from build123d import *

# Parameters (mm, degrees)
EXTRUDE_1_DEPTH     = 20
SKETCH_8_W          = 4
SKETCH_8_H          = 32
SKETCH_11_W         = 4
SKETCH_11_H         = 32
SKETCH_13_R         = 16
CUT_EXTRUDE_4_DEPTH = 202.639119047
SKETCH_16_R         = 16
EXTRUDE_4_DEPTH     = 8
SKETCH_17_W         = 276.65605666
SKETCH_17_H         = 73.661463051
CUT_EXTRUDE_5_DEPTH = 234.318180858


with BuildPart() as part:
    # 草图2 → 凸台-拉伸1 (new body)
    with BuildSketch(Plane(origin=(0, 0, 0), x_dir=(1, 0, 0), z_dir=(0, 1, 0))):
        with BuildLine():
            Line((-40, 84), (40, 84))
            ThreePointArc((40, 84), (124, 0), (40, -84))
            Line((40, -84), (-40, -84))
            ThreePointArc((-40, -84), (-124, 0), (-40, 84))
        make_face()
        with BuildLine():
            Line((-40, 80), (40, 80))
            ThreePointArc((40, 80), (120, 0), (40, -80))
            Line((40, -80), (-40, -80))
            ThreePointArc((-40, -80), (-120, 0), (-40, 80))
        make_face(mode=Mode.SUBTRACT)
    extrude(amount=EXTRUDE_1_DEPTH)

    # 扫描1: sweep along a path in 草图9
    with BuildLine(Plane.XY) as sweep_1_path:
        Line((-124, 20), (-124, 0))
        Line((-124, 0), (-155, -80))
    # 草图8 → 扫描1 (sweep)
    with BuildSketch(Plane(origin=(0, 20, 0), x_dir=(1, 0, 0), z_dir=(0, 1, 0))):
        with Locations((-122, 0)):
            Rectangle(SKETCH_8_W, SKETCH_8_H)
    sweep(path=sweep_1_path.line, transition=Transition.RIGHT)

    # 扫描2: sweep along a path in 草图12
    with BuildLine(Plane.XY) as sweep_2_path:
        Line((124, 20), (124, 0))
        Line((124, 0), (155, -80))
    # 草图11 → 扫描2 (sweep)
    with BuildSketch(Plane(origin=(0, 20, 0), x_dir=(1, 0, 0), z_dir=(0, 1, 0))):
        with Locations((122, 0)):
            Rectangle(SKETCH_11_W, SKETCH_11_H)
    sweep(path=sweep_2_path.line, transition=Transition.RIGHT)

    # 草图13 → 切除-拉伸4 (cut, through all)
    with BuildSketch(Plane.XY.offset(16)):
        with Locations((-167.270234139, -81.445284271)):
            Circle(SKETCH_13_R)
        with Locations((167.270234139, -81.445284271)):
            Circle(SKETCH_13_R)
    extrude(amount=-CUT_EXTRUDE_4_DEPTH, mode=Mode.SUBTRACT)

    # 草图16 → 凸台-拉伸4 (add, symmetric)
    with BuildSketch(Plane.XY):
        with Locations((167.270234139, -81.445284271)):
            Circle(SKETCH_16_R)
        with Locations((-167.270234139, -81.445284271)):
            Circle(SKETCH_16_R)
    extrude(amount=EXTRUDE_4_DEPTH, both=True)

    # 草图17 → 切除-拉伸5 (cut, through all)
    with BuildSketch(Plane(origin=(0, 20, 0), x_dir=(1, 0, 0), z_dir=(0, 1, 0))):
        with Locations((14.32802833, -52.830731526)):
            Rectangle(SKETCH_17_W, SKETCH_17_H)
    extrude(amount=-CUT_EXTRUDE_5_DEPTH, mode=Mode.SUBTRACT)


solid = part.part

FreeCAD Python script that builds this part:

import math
import FreeCAD as App
import Part
import Sketcher
Q = App.Units.Quantity


def add_polygon(sketch, points):
    """Adds a closed chain of lines whose ends are joined by coincident constraints."""
    first, n = sketch.GeometryCount, len(points)
    for a, b in zip(points, points[1:] + points[:1]):
        sketch.addGeometry(Part.LineSegment(App.Vector(*a, 0), App.Vector(*b, 0)), False)
    for i in range(n):
        sketch.addConstraint(Sketcher.Constraint("Coincident", first + i, 2, first + (i + 1) % n, 1))

doc = App.newDocument("Part")
params = doc.addObject("Spreadsheet::Sheet", "Params")
for row, (alias, value) in enumerate([
    ("sketch1_radius", "84 mm"),
    ("sketch1_radius2", "80 mm"),
    ("sketch1_width", "80 mm"),
    ("pad1_length", "20 mm"),
    ("sketch2_width", "4 mm"),
    ("sketch2_height", "32 mm"),
    ("sketch3_height", "20 mm"),
    ("sketch4_width", "4 mm"),
    ("sketch4_height", "32 mm"),
    ("sketch5_height", "20 mm"),
    ("sketch6_diameter", "32 mm"),
    ("sketch7_diameter", "32 mm"),
    ("pad2_length", "16 mm"),
], start=1):
    params.set(f"A{row}", alias)
    params.set(f"B{row}", "=" + value)
    params.setAlias(f"B{row}", alias)

body = doc.addObject("PartDesign::Body", "Body")

# Sketch on XZ plane
sketch1 = doc.addObject("Sketcher::SketchObject", "Sketch")
body.addObject(sketch1)
sketch1.AttachmentSupport = (doc.XZ_Plane, [""])
sketch1.MapMode = "FlatFace"
sketch1.addGeometry([
    Part.LineSegment(App.Vector(40, -84, 0), App.Vector(-40, -84, 0)),  # 0
    Part.ArcOfCircle(Part.Circle(App.Vector(-40, 0, 0), App.Vector(0, 0, 1), 84), math.radians(90), math.radians(270)),  # 1
    Part.LineSegment(App.Vector(-40, 84, 0), App.Vector(40, 84, 0)),  # 2
    Part.ArcOfCircle(Part.Circle(App.Vector(40, 0, 0), App.Vector(0, 0, 1), 84), math.radians(-90), math.radians(90)),  # 3
    Part.LineSegment(App.Vector(-40, -80, 0), App.Vector(40, -80, 0)),  # 4
    Part.ArcOfCircle(Part.Circle(App.Vector(40, 0, 0), App.Vector(0, 0, 1), 80), math.radians(-90), math.radians(90)),  # 5
    Part.LineSegment(App.Vector(40, 80, 0), App.Vector(-40, 80, 0)),  # 6
    Part.ArcOfCircle(Part.Circle(App.Vector(-40, 0, 0), App.Vector(0, 0, 1), 80), math.radians(90), math.radians(270)),  # 7
], False)
sketch1.addConstraint([
    Sketcher.Constraint("Tangent", 0, 2, 1, 2),
    Sketcher.Constraint("Tangent", 1, 1, 2, 1),
    Sketcher.Constraint("Tangent", 2, 2, 3, 2),
    Sketcher.Constraint("Tangent", 3, 1, 0, 1),
    Sketcher.Constraint("Tangent", 4, 2, 5, 1),
    Sketcher.Constraint("Tangent", 5, 2, 6, 1),
    Sketcher.Constraint("Tangent", 6, 2, 7, 1),
    Sketcher.Constraint("Tangent", 7, 2, 4, 1),
    Sketcher.Constraint("Horizontal", 0),
    Sketcher.Constraint("Horizontal", 2),
    Sketcher.Constraint("Horizontal", 4),
    Sketcher.Constraint("Horizontal", 6),
    Sketcher.Constraint("Coincident", 5, 3, 3, 3),
    Sketcher.Constraint("Symmetric", 1, 3, 3, 3, -1, 1),
    Sketcher.Constraint("Vertical", 7, 3, 0, 2),
    Sketcher.Constraint("Radius", 1, Q("84 mm")),
    Sketcher.Constraint("Radius", 5, Q("80 mm")),
    Sketcher.Constraint("DistanceX", 0, 2, 0, 1, Q("80 mm")),
])
sketch1.setExpression("Constraints[15]", "Params.sketch1_radius")
sketch1.setExpression("Constraints[16]", "Params.sketch1_radius2")
sketch1.setExpression("Constraints[17]", "Params.sketch1_width")
pad1 = doc.addObject("PartDesign::Pad", "Pad")
body.addObject(pad1)
pad1.Profile = sketch1
pad1.setExpression("Length", "Params.pad1_length")
pad1.Reversed = True

# Sketch on XZ plane
sketch2 = doc.addObject("Sketcher::SketchObject", "Sketch001")
body.addObject(sketch2)
sketch2.AttachmentSupport = (doc.XZ_Plane, [""])
sketch2.MapMode = "FlatFace"
sketch2.AttachmentOffset = App.Placement(App.Vector(0, 0, -20), App.Rotation())
add_polygon(sketch2, [(-124, -16), (-124, 16), (-120, 16), (-120, -16)])  # lines 0-3
sketch2.addConstraint([
    Sketcher.Constraint("Vertical", 0),
    Sketcher.Constraint("Horizontal", 1),
    Sketcher.Constraint("Vertical", 2),
    Sketcher.Constraint("Horizontal", 3),
    Sketcher.Constraint("DistanceX", 1, 1, 1, 2, Q("4 mm")),
    Sketcher.Constraint("DistanceY", 0, 1, 0, 2, Q("32 mm")),
    Sketcher.Constraint("DistanceX", 0, 2, -1, 1, Q("124 mm")),
    Sketcher.Constraint("DistanceY", -1, 1, 0, 2, Q("16 mm")),
])
sketch2.setExpression("Constraints[8]", "Params.sketch2_width")
sketch2.setExpression("Constraints[9]", "Params.sketch2_height")

# Sketch on XY plane
sketch3 = doc.addObject("Sketcher::SketchObject", "Sketch002")
body.addObject(sketch3)
sketch3.AttachmentSupport = (doc.XY_Plane, [""])
sketch3.MapMode = "FlatFace"
sketch3.addGeometry([
    Part.LineSegment(App.Vector(-124, 20, 0), App.Vector(-124, 0, 0)),
    Part.LineSegment(App.Vector(-124, 0, 0), App.Vector(-155, -80, 0)),
], False)
sketch3.addConstraint([
    Sketcher.Constraint("Coincident", 0, 2, 1, 1),
    Sketcher.Constraint("Vertical", 0),
    Sketcher.Constraint("PointOnObject", 0, 2, -1),
    Sketcher.Constraint("DistanceY", 0, 2, 0, 1, Q("20 mm")),
    Sketcher.Constraint("DistanceX", 0, 1, -1, 1, Q("124 mm")),
    Sketcher.Constraint("DistanceX", 1, 2, -1, 1, Q("155 mm")),
    Sketcher.Constraint("DistanceY", 1, 2, -1, 1, Q("80 mm")),
])
sketch3.setExpression("Constraints[3]", "Params.sketch3_height")
doc.recompute()

additivepipe = doc.addObject("PartDesign::AdditivePipe", "AdditivePipe")
body.addObject(additivepipe)
additivepipe.Profile = sketch2
additivepipe.Spine = (sketch3, ["Edge1", "Edge2"])
additivepipe.Transition = "Right corner"

# Sketch on XZ plane
sketch4 = doc.addObject("Sketcher::SketchObject", "Sketch003")
body.addObject(sketch4)
sketch4.AttachmentSupport = (doc.XZ_Plane, [""])
sketch4.MapMode = "FlatFace"
sketch4.AttachmentOffset = App.Placement(App.Vector(0, 0, -20), App.Rotation())
add_polygon(sketch4, [(120, -16), (120, 16), (124, 16), (124, -16)])  # lines 0-3
sketch4.addConstraint([
    Sketcher.Constraint("Vertical", 0),
    Sketcher.Constraint("Horizontal", 1),
    Sketcher.Constraint("Vertical", 2),
    Sketcher.Constraint("Horizontal", 3),
    Sketcher.Constraint("DistanceX", 1, 1, 1, 2, Q("4 mm")),
    Sketcher.Constraint("DistanceY", 0, 1, 0, 2, Q("32 mm")),
    Sketcher.Constraint("DistanceX", -1, 1, 0, 2, Q("120 mm")),
    Sketcher.Constraint("DistanceY", -1, 1, 0, 2, Q("16 mm")),
])
sketch4.setExpression("Constraints[8]", "Params.sketch4_width")
sketch4.setExpression("Constraints[9]", "Params.sketch4_height")

# Sketch on XY plane
sketch5 = doc.addObject("Sketcher::SketchObject", "Sketch004")
body.addObject(sketch5)
sketch5.AttachmentSupport = (doc.XY_Plane, [""])
sketch5.MapMode = "FlatFace"
sketch5.addGeometry([
    Part.LineSegment(App.Vector(124, 20, 0), App.Vector(124, 0, 0)),
    Part.LineSegment(App.Vector(124, 0, 0), App.Vector(155, -80, 0)),
], False)
sketch5.addConstraint([
    Sketcher.Constraint("Coincident", 0, 2, 1, 1),
    Sketcher.Constraint("Vertical", 0),
    Sketcher.Constraint("PointOnObject", 0, 2, -1),
    Sketcher.Constraint("DistanceY", 0, 2, 0, 1, Q("20 mm")),
    Sketcher.Constraint("DistanceX", -1, 1, 0, 1, Q("124 mm")),
    Sketcher.Constraint("DistanceX", -1, 1, 1, 2, Q("155 mm")),
    Sketcher.Constraint("DistanceY", 1, 2, -1, 1, Q("80 mm")),
])
sketch5.setExpression("Constraints[3]", "Params.sketch5_height")
doc.recompute()

additivepipe2 = doc.addObject("PartDesign::AdditivePipe", "AdditivePipe001")
body.addObject(additivepipe2)
additivepipe2.Profile = sketch4
additivepipe2.Spine = (sketch5, ["Edge1", "Edge2"])
additivepipe2.Transition = "Right corner"

# Sketch on XY plane
sketch6 = doc.addObject("Sketcher::SketchObject", "Sketch005")
body.addObject(sketch6)
sketch6.AttachmentSupport = (doc.XY_Plane, [""])
sketch6.MapMode = "FlatFace"
sketch6.AttachmentOffset = App.Placement(App.Vector(0, 0, 16), App.Rotation())
sketch6.addGeometry([
    Part.Circle(App.Vector(-167.270234, -81.445284, 0), App.Vector(0, 0, 1), 16),
    Part.Circle(App.Vector(167.270234, -81.445284, 0), App.Vector(0, 0, 1), 16),
], False)
sketch6.addConstraint([
    Sketcher.Constraint("Equal", 0, 1),
    Sketcher.Constraint("Symmetric", 0, 3, 1, 3, -2),
    Sketcher.Constraint("Diameter", 0, Q("32 mm")),
    Sketcher.Constraint("DistanceX", 0, 3, 1, 3, Q("334.540468 mm")),
    Sketcher.Constraint("DistanceY", 0, 3, -1, 1, Q("81.445284 mm")),
])
sketch6.setExpression("Constraints[2]", "Params.sketch6_diameter")
pocket1 = doc.addObject("PartDesign::Pocket", "Pocket")
body.addObject(pocket1)
pocket1.Profile = sketch6
pocket1.Type = "ThroughAll"

# Sketch on XY plane
sketch7 = doc.addObject("Sketcher::SketchObject", "Sketch006")
body.addObject(sketch7)
sketch7.AttachmentSupport = (doc.XY_Plane, [""])
sketch7.MapMode = "FlatFace"
sketch7.addGeometry([
    Part.Circle(App.Vector(167.270234, -81.445284, 0), App.Vector(0, 0, 1), 16),
    Part.Circle(App.Vector(-167.270234, -81.445284, 0), App.Vector(0, 0, 1), 16),
], False)
sketch7.addConstraint([
    Sketcher.Constraint("Equal", 0, 1),
    Sketcher.Constraint("Symmetric", 0, 3, 1, 3, -2),
    Sketcher.Constraint("Diameter", 0, Q("32 mm")),
    Sketcher.Constraint("DistanceX", 1, 3, 0, 3, Q("334.540468 mm")),
    Sketcher.Constraint("DistanceY", 0, 3, -1, 1, Q("81.445284 mm")),
])
sketch7.setExpression("Constraints[2]", "Params.sketch7_diameter")
pad2 = doc.addObject("PartDesign::Pad", "Pad001")
body.addObject(pad2)
pad2.Profile = sketch7
pad2.setExpression("Length", "Params.pad2_length")
pad2.Midplane = True

# Sketch on XZ plane
sketch8 = doc.addObject("Sketcher::SketchObject", "Sketch007")
body.addObject(sketch8)
sketch8.AttachmentSupport = (doc.XZ_Plane, [""])
sketch8.MapMode = "FlatFace"
sketch8.AttachmentOffset = App.Placement(App.Vector(0, 0, -20), App.Rotation())
add_polygon(sketch8, [(-124, 16), (-124, 89.661463), (152.656057, 89.661463), (152.656057, 16)])  # lines 0-3
sketch8.addConstraint([
    Sketcher.Constraint("Vertical", 0),
    Sketcher.Constraint("Horizontal", 1),
    Sketcher.Constraint("Vertical", 2),
    Sketcher.Constraint("Horizontal", 3),
    Sketcher.Constraint("DistanceX", 0, 2, -1, 1, Q("124 mm")),
    Sketcher.Constraint("DistanceY", -1, 1, 2, 2, Q("16 mm")),
    Sketcher.Constraint("DistanceX", 1, 1, 1, 2, Q("276.656057 mm")),
    Sketcher.Constraint("DistanceY", 0, 1, 0, 2, Q("73.661463 mm")),
])
pocket2 = doc.addObject("PartDesign::Pocket", "Pocket001")
body.addObject(pocket2)
pocket2.Profile = sketch8
pocket2.Type = "ThroughAll"
pocket2.Reversed = True

doc.recompute()
